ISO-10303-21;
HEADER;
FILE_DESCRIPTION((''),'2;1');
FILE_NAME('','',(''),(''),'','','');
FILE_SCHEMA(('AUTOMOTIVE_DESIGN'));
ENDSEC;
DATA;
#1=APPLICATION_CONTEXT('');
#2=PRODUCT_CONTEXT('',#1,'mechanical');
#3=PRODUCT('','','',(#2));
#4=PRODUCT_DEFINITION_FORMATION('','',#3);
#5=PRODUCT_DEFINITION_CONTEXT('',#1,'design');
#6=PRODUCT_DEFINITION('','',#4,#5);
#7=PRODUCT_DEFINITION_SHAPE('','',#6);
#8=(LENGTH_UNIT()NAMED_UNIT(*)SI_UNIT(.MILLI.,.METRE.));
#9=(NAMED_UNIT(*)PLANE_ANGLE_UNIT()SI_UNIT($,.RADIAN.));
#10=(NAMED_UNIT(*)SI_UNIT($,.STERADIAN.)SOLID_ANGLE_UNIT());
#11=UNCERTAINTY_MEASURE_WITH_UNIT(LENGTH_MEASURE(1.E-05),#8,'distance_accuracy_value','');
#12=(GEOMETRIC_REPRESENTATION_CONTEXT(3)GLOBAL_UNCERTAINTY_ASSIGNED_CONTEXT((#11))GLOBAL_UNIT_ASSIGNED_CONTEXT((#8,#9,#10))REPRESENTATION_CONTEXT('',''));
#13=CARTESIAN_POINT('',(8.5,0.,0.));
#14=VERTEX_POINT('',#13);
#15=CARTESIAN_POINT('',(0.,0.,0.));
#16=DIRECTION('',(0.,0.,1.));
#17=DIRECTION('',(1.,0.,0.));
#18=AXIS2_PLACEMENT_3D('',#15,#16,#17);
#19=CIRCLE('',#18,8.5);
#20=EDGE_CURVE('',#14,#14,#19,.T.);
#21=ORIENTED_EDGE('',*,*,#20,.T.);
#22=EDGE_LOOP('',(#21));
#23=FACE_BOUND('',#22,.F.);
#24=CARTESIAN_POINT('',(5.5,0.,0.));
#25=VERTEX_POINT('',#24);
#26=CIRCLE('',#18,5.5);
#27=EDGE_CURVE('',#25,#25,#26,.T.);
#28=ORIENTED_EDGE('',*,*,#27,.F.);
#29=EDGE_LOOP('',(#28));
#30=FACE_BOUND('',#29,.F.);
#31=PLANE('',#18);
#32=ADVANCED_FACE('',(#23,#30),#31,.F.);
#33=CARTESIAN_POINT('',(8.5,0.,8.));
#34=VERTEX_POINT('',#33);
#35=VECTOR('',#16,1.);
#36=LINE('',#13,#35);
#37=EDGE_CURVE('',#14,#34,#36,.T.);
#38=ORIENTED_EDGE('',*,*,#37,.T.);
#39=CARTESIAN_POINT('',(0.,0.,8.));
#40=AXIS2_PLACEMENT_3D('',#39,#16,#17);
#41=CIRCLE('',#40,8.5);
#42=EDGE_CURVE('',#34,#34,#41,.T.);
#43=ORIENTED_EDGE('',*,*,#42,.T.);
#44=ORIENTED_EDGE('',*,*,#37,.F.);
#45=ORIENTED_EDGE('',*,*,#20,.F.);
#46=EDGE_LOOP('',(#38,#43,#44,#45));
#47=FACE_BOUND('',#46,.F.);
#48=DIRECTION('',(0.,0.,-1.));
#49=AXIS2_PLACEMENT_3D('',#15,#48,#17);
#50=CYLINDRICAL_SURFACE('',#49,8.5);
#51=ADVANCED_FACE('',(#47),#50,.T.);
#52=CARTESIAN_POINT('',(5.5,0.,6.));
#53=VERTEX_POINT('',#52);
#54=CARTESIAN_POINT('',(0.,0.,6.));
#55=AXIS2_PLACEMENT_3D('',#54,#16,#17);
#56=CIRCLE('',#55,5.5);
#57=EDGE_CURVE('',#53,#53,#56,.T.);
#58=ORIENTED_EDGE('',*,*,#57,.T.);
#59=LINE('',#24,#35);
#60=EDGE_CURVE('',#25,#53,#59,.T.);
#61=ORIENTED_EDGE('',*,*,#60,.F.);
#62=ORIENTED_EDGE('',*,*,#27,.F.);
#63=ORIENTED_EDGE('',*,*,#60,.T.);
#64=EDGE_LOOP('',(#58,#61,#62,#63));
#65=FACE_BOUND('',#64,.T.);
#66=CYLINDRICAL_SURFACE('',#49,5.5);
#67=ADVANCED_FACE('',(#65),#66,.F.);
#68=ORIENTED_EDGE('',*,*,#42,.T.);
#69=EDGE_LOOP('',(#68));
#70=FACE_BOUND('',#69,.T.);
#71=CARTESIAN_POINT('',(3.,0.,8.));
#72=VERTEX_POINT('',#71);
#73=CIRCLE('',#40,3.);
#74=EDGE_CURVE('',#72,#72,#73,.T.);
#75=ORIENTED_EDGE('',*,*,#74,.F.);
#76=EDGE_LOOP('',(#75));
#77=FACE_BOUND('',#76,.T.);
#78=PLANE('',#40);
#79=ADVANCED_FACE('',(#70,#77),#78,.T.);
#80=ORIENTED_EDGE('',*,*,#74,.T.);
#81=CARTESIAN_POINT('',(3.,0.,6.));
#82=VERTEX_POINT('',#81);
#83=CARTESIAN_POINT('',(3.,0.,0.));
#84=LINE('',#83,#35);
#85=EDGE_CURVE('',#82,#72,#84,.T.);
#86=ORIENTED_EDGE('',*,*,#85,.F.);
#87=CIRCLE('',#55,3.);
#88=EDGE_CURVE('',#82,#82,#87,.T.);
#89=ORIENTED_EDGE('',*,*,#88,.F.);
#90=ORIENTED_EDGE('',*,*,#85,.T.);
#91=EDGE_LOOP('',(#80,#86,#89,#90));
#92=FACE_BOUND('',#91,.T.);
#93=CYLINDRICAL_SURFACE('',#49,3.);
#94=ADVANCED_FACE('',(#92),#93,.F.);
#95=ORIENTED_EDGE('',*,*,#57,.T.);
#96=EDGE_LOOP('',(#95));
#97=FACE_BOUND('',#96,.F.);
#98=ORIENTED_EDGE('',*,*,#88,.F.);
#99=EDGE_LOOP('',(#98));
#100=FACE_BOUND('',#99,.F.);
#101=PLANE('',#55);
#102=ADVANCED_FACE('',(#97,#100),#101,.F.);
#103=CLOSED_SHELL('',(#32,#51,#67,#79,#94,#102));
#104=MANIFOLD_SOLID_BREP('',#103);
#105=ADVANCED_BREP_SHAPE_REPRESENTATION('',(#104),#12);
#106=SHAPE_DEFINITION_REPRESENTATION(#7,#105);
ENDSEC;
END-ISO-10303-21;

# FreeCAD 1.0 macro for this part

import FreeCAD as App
import Part
import Sketcher
from FreeCAD import Vector
Q = App.Units.Quantity

doc = App.newDocument("Part")
body = doc.addObject("PartDesign::Body", "Body")

sketch1 = body.newObject("Sketcher::SketchObject", "Sketch")
sketch1.AttachmentSupport = (doc.getObject("XY_Plane"), [""])
sketch1.MapMode = "FlatFace"
sketch1.addGeometry([
    Part.Circle(Vector(0, 0, 0), Vector(0, 0, 1), 8.5),
    Part.Circle(Vector(0, 0, 0), Vector(0, 0, 1), 5.5),
], False)
sketch1.addConstraint([
    Sketcher.Constraint("Coincident", 0, 3, -1, 1),
    Sketcher.Constraint("Coincident", 1, 3, -1, 1),
    Sketcher.Constraint("Diameter", 0, Q("17 mm")),
    Sketcher.Constraint("Diameter", 1, Q("11 mm")),
])
pad1 = body.newObject("PartDesign::Pad", "Pad")
pad1.Profile = sketch1
pad1.Length = 8

sketch2 = body.newObject("Sketcher::SketchObject", "Sketch001")
sketch2.AttachmentSupport = (doc.getObject("XY_Plane"), [""])
sketch2.MapMode = "FlatFace"
sketch2.addGeometry([
    Part.Circle(Vector(0, 0, 0), Vector(0, 0, 1), 5.5),
    Part.Circle(Vector(0, 0, 0), Vector(0, 0, 1), 3),
], False)
sketch2.addConstraint([
    Sketcher.Constraint("Coincident", 0, 3, -1, 1),
    Sketcher.Constraint("Coincident", 1, 3, -1, 1),
    Sketcher.Constraint("Diameter", 0, Q("11 mm")),
    Sketcher.Constraint("Diameter", 1, Q("6 mm")),
])
pad2 = body.newObject("PartDesign::Pad", "Pad001")
pad2.Profile = sketch2
pad2.Length = 8

sketch3 = body.newObject("Sketcher::SketchObject", "Sketch002")
sketch3.AttachmentSupport = (doc.getObject("XY_Plane"), [""])
sketch3.MapMode = "FlatFace"
sketch3.addGeometry([
    Part.Circle(Vector(0, 0, 0), Vector(0, 0, 1), 5.5),
    Part.Circle(Vector(0, 0, 0), Vector(0, 0, 1), 3),
], False)
sketch3.addConstraint([
    Sketcher.Constraint("Coincident", 0, 3, -1, 1),
    Sketcher.Constraint("Coincident", 1, 3, -1, 1),
    Sketcher.Constraint("Diameter", 0, Q("11 mm")),
    Sketcher.Constraint("Diameter", 1, Q("6 mm")),
])
pocket1 = body.newObject("PartDesign::Pocket", "Pocket")
pocket1.Profile = sketch3
pocket1.Length = 6
pocket1.Reversed = True

doc.recompute()
